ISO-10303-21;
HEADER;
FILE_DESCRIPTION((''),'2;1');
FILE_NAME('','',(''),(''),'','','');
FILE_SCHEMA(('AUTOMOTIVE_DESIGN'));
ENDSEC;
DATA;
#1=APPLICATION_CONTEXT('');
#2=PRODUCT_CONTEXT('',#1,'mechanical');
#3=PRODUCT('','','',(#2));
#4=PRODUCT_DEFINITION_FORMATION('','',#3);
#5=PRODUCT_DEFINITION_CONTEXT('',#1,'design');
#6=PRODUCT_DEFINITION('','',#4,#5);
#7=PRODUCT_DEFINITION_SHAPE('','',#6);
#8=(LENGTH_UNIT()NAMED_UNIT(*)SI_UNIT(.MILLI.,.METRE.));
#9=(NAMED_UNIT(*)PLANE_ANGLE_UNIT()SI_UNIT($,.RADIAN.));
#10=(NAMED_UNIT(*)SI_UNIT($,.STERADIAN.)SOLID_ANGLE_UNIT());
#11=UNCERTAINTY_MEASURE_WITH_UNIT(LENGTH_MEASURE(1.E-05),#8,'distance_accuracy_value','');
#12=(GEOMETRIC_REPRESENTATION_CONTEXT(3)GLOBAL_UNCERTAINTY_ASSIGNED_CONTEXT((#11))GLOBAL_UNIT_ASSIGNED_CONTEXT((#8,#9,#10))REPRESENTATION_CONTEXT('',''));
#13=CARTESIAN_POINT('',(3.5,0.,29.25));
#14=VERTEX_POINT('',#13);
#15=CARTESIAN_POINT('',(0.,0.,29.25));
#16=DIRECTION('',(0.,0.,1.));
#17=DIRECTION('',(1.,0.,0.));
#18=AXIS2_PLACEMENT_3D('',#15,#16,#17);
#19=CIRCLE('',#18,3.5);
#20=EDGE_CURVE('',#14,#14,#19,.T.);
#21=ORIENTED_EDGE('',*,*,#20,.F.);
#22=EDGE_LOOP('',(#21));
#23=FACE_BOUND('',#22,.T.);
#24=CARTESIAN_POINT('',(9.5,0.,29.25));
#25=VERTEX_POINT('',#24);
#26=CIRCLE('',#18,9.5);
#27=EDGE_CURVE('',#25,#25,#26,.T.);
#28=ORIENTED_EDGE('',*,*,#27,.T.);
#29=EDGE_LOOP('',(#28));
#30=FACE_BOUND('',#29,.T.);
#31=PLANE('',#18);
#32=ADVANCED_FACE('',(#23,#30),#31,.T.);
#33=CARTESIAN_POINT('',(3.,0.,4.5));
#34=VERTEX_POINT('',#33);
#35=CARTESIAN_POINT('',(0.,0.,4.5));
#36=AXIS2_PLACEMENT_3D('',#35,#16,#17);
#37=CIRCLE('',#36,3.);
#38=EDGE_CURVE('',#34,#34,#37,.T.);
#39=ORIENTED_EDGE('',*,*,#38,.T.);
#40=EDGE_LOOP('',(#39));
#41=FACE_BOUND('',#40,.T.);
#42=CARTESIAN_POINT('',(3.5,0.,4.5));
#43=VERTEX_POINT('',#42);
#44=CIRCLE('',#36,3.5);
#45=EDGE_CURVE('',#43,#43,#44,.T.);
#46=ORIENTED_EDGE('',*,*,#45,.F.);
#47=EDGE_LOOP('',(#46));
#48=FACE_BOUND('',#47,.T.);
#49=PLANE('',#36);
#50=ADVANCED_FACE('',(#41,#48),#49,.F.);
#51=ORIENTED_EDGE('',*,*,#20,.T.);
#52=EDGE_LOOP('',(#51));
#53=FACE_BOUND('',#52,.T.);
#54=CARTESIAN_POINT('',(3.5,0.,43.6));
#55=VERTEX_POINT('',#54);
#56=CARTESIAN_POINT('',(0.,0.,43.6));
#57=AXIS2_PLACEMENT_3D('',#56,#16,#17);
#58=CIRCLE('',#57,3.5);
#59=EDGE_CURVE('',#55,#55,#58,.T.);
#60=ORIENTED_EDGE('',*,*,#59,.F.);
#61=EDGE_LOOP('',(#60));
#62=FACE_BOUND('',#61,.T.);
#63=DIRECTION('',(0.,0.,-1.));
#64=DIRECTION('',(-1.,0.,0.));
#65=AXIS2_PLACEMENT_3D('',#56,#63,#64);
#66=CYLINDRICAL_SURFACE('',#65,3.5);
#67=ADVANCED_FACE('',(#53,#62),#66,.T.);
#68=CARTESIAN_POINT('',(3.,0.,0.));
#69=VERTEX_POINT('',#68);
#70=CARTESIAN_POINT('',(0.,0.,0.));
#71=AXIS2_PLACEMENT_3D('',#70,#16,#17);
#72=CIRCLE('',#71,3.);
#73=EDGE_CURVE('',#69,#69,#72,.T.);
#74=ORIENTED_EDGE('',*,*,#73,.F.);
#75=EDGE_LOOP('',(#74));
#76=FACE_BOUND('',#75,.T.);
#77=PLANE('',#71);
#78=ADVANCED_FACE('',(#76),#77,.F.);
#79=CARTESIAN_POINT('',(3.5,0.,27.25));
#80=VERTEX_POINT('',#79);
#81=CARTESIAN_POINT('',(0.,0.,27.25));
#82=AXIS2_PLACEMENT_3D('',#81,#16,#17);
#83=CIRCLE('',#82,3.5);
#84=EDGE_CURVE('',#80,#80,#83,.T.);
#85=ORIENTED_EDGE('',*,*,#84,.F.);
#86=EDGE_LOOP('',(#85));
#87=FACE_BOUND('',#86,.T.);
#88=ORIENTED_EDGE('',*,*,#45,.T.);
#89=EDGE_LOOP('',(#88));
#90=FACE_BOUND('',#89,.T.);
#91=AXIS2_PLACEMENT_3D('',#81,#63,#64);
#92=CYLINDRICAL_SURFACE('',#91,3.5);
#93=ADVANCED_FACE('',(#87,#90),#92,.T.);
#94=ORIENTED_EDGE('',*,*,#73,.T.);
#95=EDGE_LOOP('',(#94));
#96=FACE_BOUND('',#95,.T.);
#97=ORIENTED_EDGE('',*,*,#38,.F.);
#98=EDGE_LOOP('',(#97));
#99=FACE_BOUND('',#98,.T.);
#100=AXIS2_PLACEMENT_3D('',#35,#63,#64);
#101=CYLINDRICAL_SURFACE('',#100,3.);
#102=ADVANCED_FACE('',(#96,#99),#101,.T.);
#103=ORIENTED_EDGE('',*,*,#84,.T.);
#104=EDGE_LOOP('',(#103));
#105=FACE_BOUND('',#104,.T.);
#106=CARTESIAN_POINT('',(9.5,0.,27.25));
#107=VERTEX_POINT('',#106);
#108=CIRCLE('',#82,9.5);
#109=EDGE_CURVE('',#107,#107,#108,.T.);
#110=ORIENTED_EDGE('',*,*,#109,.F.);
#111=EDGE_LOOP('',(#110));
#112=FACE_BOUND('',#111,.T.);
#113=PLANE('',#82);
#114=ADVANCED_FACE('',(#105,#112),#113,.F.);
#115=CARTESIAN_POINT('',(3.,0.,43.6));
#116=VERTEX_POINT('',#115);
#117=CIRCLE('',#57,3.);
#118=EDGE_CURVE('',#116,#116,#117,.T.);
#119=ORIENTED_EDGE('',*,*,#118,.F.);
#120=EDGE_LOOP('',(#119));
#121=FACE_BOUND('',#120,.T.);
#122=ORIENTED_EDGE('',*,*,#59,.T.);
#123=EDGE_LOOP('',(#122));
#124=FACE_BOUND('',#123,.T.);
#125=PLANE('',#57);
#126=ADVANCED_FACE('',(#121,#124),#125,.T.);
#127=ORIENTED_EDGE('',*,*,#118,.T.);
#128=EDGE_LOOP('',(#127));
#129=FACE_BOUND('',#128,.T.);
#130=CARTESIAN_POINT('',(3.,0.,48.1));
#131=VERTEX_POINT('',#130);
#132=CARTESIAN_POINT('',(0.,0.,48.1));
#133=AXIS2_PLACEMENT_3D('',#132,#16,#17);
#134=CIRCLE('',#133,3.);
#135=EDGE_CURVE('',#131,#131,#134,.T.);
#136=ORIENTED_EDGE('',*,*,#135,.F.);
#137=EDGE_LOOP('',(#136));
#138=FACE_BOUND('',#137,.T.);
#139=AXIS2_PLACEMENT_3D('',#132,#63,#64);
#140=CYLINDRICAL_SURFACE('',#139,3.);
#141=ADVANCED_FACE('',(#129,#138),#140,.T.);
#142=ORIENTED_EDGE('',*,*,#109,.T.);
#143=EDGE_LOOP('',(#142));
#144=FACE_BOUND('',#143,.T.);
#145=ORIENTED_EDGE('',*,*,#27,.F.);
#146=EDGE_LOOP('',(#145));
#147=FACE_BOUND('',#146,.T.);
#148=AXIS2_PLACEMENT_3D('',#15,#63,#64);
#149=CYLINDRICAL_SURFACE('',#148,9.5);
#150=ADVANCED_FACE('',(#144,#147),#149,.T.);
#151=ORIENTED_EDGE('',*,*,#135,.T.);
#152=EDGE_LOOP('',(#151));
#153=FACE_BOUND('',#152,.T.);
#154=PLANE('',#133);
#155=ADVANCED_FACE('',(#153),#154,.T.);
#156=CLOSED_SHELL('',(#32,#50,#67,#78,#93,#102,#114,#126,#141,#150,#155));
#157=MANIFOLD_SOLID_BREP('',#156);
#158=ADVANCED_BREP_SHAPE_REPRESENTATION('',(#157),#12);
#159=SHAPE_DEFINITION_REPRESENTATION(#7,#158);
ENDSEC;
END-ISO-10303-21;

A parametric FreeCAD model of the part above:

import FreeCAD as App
import Part
import Sketcher
Q = App.Units.Quantity

doc = App.newDocument("Part")
body = doc.addObject("PartDesign::Body", "Body")

# Sketch on XY plane
sketch1 = doc.addObject("Sketcher::SketchObject", "Sketch")
body.addObject(sketch1)
sketch1.AttachmentSupport = (doc.XY_Plane, [""])
sketch1.MapMode = "FlatFace"
sketch1.addGeometry(Part.Circle(App.Vector(0, 0, 0), App.Vector(0, 0, 1), 3), False)
sketch1.addConstraint([
    Sketcher.Constraint("Coincident", 0, 3, -1, 1),
    Sketcher.Constraint("Diameter", 0, Q("6 mm")),
])
pad1 = doc.addObject("PartDesign::Pad", "Pad")
body.addObject(pad1)
pad1.Profile = sketch1
pad1.Length = 4.5

# Sketch on XY plane
sketch2 = doc.addObject("Sketcher::SketchObject", "Sketch001")
body.addObject(sketch2)
sketch2.AttachmentSupport = (doc.XY_Plane, [""])
sketch2.MapMode = "FlatFace"
sketch2.AttachmentOffset = App.Placement(App.Vector(0, 0, 4.5), App.Rotation())
sketch2.addGeometry(Part.Circle(App.Vector(0, 0, 0), App.Vector(0, 0, 1), 3.5), False)
sketch2.addConstraint([
    Sketcher.Constraint("Coincident", 0, 3, -1, 1),
    Sketcher.Constraint("Diameter", 0, Q("7 mm")),
])
pad2 = doc.addObject("PartDesign::Pad", "Pad001")
body.addObject(pad2)
pad2.Profile = sketch2
pad2.Length = 22.75

# Sketch on XY plane
sketch3 = doc.addObject("Sketcher::SketchObject", "Sketch002")
body.addObject(sketch3)
sketch3.AttachmentSupport = (doc.XY_Plane, [""])
sketch3.MapMode = "FlatFace"
sketch3.AttachmentOffset = App.Placement(App.Vector(0, 0, 27.25), App.Rotation())
sketch3.addGeometry(Part.Circle(App.Vector(0, 0, 0), App.Vector(0, 0, 1), 9.5), False)
sketch3.addConstraint([
    Sketcher.Constraint("Coincident", 0, 3, -1, 1),
    Sketcher.Constraint("Diameter", 0, Q("19 mm")),
])
pad3 = doc.addObject("PartDesign::Pad", "Pad002")
body.addObject(pad3)
pad3.Profile = sketch3
pad3.Length = 2

# Sketch on XY plane
sketch4 = doc.addObject("Sketcher::SketchObject", "Sketch003")
body.addObject(sketch4)
sketch4.AttachmentSupport = (doc.XY_Plane, [""])
sketch4.MapMode = "FlatFace"
sketch4.AttachmentOffset = App.Placement(App.Vector(0, 0, 29.25), App.Rotation())
sketch4.addGeometry(Part.Circle(App.Vector(0, 0, 0), App.Vector(0, 0, 1), 3.5), False)
sketch4.addConstraint([
    Sketcher.Constraint("Coincident", 0, 3, -1, 1),
    Sketcher.Constraint("Diameter", 0, Q("7 mm")),
])
pad4 = doc.addObject("PartDesign::Pad", "Pad003")
body.addObject(pad4)
pad4.Profile = sketch4
pad4.Length = 14.35

# Sketch on XY plane
sketch5 = doc.addObject("Sketcher::SketchObject", "Sketch004")
body.addObject(sketch5)
sketch5.AttachmentSupport = (doc.XY_Plane, [""])
sketch5.MapMode = "FlatFace"
sketch5.AttachmentOffset = App.Placement(App.Vector(0, 0, 43.6), App.Rotation())
sketch5.addGeometry(Part.Circle(App.Vector(0, 0, 0), App.Vector(0, 0, 1), 3), False)
sketch5.addConstraint([
    Sketcher.Constraint("Coincident", 0, 3, -1, 1),
    Sketcher.Constraint("Diameter", 0, Q("6 mm")),
])
pad5 = doc.addObject("PartDesign::Pad", "Pad004")
body.addObject(pad5)
pad5.Profile = sketch5
pad5.Length = 4.5

doc.recompute()
